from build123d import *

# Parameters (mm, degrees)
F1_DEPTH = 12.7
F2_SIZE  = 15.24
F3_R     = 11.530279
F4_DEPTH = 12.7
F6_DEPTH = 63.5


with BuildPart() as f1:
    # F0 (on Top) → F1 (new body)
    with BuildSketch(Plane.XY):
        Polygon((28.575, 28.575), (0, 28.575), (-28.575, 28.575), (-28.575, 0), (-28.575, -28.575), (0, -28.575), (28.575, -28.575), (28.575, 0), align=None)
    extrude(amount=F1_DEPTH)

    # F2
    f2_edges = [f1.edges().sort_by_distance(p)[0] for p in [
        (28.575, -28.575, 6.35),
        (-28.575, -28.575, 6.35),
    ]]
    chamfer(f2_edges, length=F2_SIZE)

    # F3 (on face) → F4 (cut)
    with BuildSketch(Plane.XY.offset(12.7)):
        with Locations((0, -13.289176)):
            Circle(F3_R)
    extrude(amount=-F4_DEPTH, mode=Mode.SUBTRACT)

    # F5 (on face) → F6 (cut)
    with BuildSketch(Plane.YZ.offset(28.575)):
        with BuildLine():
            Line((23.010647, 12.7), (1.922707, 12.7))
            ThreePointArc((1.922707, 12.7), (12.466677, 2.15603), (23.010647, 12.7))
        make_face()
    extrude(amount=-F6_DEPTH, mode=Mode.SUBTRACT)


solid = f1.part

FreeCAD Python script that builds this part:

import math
import FreeCAD as App
import Part
import Sketcher
Q = App.Units.Quantity


def edges_at(feature, points):
    """Names of the edges that pass closest to the given points."""
    edges = feature.Shape.Edges
    near = lambda p: min(range(len(edges)), key=lambda i: edges[i].distToShape(Part.Vertex(*p))[0])
    return sorted({f"Edge{near(p) + 1}" for p in points})

doc = App.newDocument("Part")
body = doc.addObject("PartDesign::Body", "Body")

sketch1 = body.newObject("Sketcher::SketchObject", "Sketch")
sketch1.AttachmentSupport = (doc.getObject("XY_Plane"), [""])
sketch1.MapMode = "FlatFace"
sketch1.addGeometry([
    Part.LineSegment(App.Vector(28.575, 28.575, 0), App.Vector(-28.575, 28.575, 0)),
    Part.LineSegment(App.Vector(-28.575, 28.575, 0), App.Vector(-28.575, -28.575, 0)),
    Part.LineSegment(App.Vector(-28.575, -28.575, 0), App.Vector(28.575, -28.575, 0)),
    Part.LineSegment(App.Vector(28.575, -28.575, 0), App.Vector(28.575, 28.575, 0)),
], False)
sketch1.addConstraint([
    Sketcher.Constraint("Coincident", 0, 2, 1, 1),
    Sketcher.Constraint("Coincident", 1, 2, 2, 1),
    Sketcher.Constraint("Coincident", 2, 2, 3, 1),
    Sketcher.Constraint("Coincident", 3, 2, 0, 1),
    Sketcher.Constraint("Horizontal", 0),
    Sketcher.Constraint("Vertical", 1),
    Sketcher.Constraint("Horizontal", 2),
    Sketcher.Constraint("Vertical", 3),
    Sketcher.Constraint("Symmetric", 0, 2, 2, 2, -1, 1),
    Sketcher.Constraint("Equal", 2, 1),
    Sketcher.Constraint("DistanceX", 0, 2, 0, 1, Q("2.25 in")),
])
pad1 = body.newObject("PartDesign::Pad", "Pad")
pad1.Profile = sketch1
pad1.Length = Q("0.5 in")
doc.recompute()

chamfer = body.newObject("PartDesign::Chamfer", "Chamfer")
chamfer.Base = (pad1, edges_at(pad1, [(28.575, -28.575, 6.35), (-28.575, -28.575, 6.35)]))
chamfer.Size = Q("0.6 in")

sketch2 = body.newObject("Sketcher::SketchObject", "Sketch001")
sketch2.AttachmentSupport = (doc.getObject("XY_Plane"), [""])
sketch2.MapMode = "FlatFace"
sketch2.AttachmentOffset = App.Placement(App.Vector(0, 0, 0.5 * 25.4), App.Rotation())
sketch2.addGeometry(Part.Circle(App.Vector(0, -13.289176, 0), App.Vector(0, 0, 1), 11.530279), False)
sketch2.addConstraint([
    Sketcher.Constraint("PointOnObject", 0, 3, -2),
    Sketcher.Constraint("Diameter", 0, 23.060558),
    Sketcher.Constraint("DistanceY", 0, 3, -1, 1, 13.289176),
])
pocket1 = body.newObject("PartDesign::Pocket", "Pocket")
pocket1.Profile = sketch2
pocket1.Length = Q("0.5 in")

sketch3 = body.newObject("Sketcher::SketchObject", "Sketch002")
sketch3.AttachmentSupport = (doc.getObject("YZ_Plane"), [""])
sketch3.MapMode = "FlatFace"
sketch3.AttachmentOffset = App.Placement(App.Vector(0, 0, 1.125 * 25.4), App.Rotation())
sketch3.addGeometry([
    Part.LineSegment(App.Vector(23.010647, 12.7, 0), App.Vector(1.922707, 12.7, 0)),
    Part.ArcOfCircle(Part.Circle(App.Vector(12.466677, 12.7, 0), App.Vector(0, 0, 1), 10.54397), math.radians(180), math.radians(360)),
], False)
sketch3.addConstraint([
    Sketcher.Constraint("Coincident", 0, 1, 1, 2),
    Sketcher.Constraint("Coincident", 1, 1, 0, 2),
    Sketcher.Constraint("Horizontal", 0),
    Sketcher.Constraint("Horizontal", 1, 3, 0, 1),
    Sketcher.Constraint("DistanceY", -1, 1, 1, 3, Q("0.5 in")),
    Sketcher.Constraint("Radius", 1, 10.54397),
    Sketcher.Constraint("DistanceX", -1, 1, 1, 3, 12.466677),
])
pocket2 = body.newObject("PartDesign::Pocket", "Pocket001")
pocket2.Profile = sketch3
pocket2.Length = Q("2.5 in")

doc.recompute()
